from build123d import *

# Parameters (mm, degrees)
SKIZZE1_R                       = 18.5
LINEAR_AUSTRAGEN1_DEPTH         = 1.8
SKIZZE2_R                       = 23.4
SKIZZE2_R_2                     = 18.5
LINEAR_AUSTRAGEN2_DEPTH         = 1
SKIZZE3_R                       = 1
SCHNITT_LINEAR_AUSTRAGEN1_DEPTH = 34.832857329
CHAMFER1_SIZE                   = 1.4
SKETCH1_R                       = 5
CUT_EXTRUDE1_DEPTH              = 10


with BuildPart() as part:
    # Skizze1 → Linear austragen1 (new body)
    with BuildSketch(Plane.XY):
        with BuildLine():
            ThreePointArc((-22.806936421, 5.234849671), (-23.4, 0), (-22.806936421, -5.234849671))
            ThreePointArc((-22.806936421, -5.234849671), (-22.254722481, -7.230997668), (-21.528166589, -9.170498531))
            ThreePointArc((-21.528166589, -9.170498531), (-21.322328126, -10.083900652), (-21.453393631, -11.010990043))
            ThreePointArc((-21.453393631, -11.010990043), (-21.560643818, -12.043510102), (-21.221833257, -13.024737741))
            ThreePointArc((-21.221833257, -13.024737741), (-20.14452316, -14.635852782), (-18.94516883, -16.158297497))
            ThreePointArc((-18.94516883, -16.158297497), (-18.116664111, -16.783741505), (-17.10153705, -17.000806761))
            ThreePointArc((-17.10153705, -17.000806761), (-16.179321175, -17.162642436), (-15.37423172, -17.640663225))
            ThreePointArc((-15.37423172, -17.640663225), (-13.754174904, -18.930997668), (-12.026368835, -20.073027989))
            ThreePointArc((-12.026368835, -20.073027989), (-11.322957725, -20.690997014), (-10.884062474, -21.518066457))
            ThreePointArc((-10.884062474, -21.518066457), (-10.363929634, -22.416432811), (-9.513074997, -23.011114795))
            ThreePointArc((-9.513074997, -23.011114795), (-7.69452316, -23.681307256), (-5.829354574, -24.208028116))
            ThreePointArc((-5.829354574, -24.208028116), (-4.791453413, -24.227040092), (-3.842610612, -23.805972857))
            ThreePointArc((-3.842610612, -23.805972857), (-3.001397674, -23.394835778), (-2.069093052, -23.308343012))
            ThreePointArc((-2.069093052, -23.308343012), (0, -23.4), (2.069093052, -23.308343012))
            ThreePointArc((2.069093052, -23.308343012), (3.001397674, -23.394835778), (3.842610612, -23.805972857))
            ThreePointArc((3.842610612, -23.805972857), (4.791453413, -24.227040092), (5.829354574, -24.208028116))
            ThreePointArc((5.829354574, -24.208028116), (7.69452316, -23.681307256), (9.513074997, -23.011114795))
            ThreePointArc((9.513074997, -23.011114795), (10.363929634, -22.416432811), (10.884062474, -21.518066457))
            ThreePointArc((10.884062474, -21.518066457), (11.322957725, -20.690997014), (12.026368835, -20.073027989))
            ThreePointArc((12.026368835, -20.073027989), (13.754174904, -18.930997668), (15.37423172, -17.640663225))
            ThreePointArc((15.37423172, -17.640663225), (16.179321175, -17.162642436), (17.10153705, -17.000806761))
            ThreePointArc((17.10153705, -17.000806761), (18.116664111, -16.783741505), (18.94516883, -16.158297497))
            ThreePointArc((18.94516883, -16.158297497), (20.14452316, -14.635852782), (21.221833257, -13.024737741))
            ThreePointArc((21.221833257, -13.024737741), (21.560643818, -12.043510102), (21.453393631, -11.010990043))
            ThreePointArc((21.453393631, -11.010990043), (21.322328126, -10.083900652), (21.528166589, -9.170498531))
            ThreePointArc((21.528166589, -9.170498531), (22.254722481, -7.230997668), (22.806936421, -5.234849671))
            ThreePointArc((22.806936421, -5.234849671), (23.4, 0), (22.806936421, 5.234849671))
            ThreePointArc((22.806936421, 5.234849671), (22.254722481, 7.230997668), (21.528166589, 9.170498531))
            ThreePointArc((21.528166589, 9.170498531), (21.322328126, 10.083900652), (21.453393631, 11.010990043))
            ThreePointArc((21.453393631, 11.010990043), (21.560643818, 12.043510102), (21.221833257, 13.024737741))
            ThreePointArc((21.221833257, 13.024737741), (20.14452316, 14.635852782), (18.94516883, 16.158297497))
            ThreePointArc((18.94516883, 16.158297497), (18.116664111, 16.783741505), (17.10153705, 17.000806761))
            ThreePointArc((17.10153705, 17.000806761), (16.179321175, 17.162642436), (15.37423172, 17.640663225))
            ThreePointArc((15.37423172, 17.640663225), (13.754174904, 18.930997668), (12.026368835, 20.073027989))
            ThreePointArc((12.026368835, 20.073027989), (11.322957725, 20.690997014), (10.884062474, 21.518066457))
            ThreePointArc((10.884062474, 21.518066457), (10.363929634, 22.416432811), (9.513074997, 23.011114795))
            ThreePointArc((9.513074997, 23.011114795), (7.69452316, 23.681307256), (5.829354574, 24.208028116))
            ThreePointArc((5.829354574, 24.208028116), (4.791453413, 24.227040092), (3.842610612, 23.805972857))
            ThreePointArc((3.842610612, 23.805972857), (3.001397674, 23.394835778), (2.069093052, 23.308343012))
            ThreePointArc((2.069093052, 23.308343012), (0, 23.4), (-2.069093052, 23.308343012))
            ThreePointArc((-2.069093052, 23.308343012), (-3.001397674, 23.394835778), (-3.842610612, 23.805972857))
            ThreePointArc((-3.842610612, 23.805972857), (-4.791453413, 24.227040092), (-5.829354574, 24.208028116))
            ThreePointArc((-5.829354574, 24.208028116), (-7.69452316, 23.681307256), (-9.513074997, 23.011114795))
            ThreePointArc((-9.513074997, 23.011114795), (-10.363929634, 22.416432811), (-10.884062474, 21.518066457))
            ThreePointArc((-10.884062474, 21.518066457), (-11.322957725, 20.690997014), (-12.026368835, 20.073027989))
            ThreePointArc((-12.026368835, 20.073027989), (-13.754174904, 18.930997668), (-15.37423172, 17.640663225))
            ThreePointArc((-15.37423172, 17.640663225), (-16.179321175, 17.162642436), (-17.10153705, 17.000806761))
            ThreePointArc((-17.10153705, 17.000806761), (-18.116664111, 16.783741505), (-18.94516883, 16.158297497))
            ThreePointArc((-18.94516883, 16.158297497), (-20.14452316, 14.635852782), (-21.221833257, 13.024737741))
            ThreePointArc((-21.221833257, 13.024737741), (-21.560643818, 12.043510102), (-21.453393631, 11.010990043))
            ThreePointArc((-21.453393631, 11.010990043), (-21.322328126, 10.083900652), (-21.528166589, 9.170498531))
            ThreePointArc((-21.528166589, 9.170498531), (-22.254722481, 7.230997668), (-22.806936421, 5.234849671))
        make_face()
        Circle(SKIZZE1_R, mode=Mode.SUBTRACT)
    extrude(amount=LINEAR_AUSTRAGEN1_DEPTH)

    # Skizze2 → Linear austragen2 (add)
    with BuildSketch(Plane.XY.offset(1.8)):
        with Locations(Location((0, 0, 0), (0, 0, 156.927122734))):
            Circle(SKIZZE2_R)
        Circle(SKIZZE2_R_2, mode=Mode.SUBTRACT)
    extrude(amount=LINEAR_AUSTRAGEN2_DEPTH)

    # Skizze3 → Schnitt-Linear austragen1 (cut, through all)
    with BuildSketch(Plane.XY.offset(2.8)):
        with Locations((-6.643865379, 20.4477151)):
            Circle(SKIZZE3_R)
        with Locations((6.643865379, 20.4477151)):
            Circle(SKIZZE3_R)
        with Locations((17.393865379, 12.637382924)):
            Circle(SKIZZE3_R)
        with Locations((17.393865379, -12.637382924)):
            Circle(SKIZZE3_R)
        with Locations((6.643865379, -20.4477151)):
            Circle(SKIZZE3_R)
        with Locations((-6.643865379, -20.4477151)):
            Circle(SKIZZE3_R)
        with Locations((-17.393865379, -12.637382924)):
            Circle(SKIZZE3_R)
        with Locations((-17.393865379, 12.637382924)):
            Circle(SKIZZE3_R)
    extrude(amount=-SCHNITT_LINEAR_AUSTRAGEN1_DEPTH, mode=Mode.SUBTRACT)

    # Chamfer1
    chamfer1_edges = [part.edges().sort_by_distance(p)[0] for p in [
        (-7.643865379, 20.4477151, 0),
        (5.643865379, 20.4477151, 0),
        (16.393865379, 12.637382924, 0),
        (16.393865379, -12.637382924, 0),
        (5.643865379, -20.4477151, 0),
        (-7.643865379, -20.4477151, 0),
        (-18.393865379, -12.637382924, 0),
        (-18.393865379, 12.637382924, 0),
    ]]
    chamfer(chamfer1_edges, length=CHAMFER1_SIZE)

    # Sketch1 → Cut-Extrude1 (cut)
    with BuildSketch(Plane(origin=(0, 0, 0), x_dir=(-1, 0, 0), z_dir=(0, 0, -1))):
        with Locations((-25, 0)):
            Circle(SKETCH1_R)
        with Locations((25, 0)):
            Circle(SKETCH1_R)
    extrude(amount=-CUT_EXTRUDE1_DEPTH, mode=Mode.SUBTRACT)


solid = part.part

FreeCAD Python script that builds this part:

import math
import FreeCAD as App
import Part
import Sketcher


def edges_at(feature, points):
    """Names of the edges that pass closest to the given points."""
    edges = feature.Shape.Edges
    near = lambda p: min(range(len(edges)), key=lambda i: edges[i].distToShape(Part.Vertex(*p))[0])
    return sorted({f"Edge{near(p) + 1}" for p in points})

doc = App.newDocument("Part")
body = doc.addObject("PartDesign::Body", "Body")

sketch1 = doc.addObject("Sketcher::SketchObject", "Sketch")
body.addObject(sketch1)
sketch1.AttachmentSupport = (doc.XY_Plane, [""])
sketch1.MapMode = "FlatFace"
sketch1.addGeometry([
    Part.ArcOfCircle(Part.Circle(App.Vector(0, 0, 0), App.Vector(0, 0, 1), 23.4), math.radians(167), math.radians(193)),
    Part.ArcOfCircle(Part.Circle(App.Vector(0, 0, 0), App.Vector(0, 0, 1), 23.4), math.radians(-167.07), math.radians(-156.93)),
    Part.ArcOfCircle(Part.Circle(App.Vector(-23.9, -10.2, 0), App.Vector(0, 0, 1), 2.6), math.radians(-18), math.radians(23)),
    Part.ArcOfCircle(Part.Circle(App.Vector(-19.2, -11.8, 0), App.Vector(0, 0, 1), 2.4), math.radians(162), math.radians(212)),
    Part.ArcOfCircle(Part.Circle(App.Vector(0, 0, 0), App.Vector(0, 0, 1), 24.9), math.radians(-148.46), math.radians(-139.54)),
    Part.ArcOfCircle(Part.Circle(App.Vector(-17.1, -14.6, 0), App.Vector(0, 0, 1), 2.4), math.radians(-140), math.radians(-90)),
    Part.ArcOfCircle(Part.Circle(App.Vector(-17.1, -19.6, 0), App.Vector(0, 0, 1), 2.6), math.radians(49), math.radians(90)),
    Part.ArcOfCircle(Part.Circle(App.Vector(0, 0, 0), App.Vector(0, 0, 1), 23.4), math.radians(-131.07), math.radians(-120.93)),
    Part.ArcOfCircle(Part.Circle(App.Vector(-13.4, -22.3, 0), App.Vector(0, 0, 1), 2.6), math.radians(18), math.radians(59)),
    Part.ArcOfCircle(Part.Circle(App.Vector(-8.6, -20.8, 0), App.Vector(0, 0, 1), 2.4), math.radians(-162), math.radians(-112)),
    Part.ArcOfCircle(Part.Circle(App.Vector(0, 0, 0), App.Vector(0, 0, 1), 24.9), math.radians(-112.46), math.radians(-103.54)),
    Part.ArcOfCircle(Part.Circle(App.Vector(-5.3, -21.9, 0), App.Vector(0, 0, 1), 2.4), math.radians(-104), math.radians(-54)),
    Part.ArcOfCircle(Part.Circle(App.Vector(-2.3, -25.9, 0), App.Vector(0, 0, 1), 2.6), math.radians(85), math.radians(126)),
    Part.ArcOfCircle(Part.Circle(App.Vector(0, 0, 0), App.Vector(0, 0, 1), 23.4), math.radians(-95.07), math.radians(-84.93)),
    Part.ArcOfCircle(Part.Circle(App.Vector(2.3, -25.9, 0), App.Vector(0, 0, 1), 2.6), math.radians(54), math.radians(95)),
    Part.ArcOfCircle(Part.Circle(App.Vector(5.3, -21.9, 0), App.Vector(0, 0, 1), 2.4), math.radians(-126), math.radians(-76)),
    Part.ArcOfCircle(Part.Circle(App.Vector(0, 0, 0), App.Vector(0, 0, 1), 24.9), math.radians(-76.46), math.radians(-67.54)),
    Part.ArcOfCircle(Part.Circle(App.Vector(8.6, -20.8, 0), App.Vector(0, 0, 1), 2.4), math.radians(-68), math.radians(-18)),
    Part.ArcOfCircle(Part.Circle(App.Vector(13.4, -22.3, 0), App.Vector(0, 0, 1), 2.6), math.radians(121), math.radians(162)),
    Part.ArcOfCircle(Part.Circle(App.Vector(0, 0, 0), App.Vector(0, 0, 1), 23.4), math.radians(-59.07), math.radians(-48.93)),
    Part.ArcOfCircle(Part.Circle(App.Vector(17.1, -19.6, 0), App.Vector(0, 0, 1), 2.6), math.radians(90), math.radians(131)),
    Part.ArcOfCircle(Part.Circle(App.Vector(17.1, -14.6, 0), App.Vector(0, 0, 1), 2.4), math.radians(-90), math.radians(-40)),
    Part.ArcOfCircle(Part.Circle(App.Vector(0, 0, 0), App.Vector(0, 0, 1), 24.9), math.radians(-40.46), math.radians(-31.54)),
    Part.ArcOfCircle(Part.Circle(App.Vector(19.2, -11.8, 0), App.Vector(0, 0, 1), 2.4), math.radians(-32), math.radians(18)),
    Part.ArcOfCircle(Part.Circle(App.Vector(23.9, -10.2, 0), App.Vector(0, 0, 1), 2.6), math.radians(157), math.radians(198)),
    Part.ArcOfCircle(Part.Circle(App.Vector(0, 0, 0), App.Vector(0, 0, 1), 23.4), math.radians(-23.07), math.radians(-12.93)),
    Part.ArcOfCircle(Part.Circle(App.Vector(0, 0, 0), App.Vector(0, 0, 1), 23.4), math.radians(-13), math.radians(13)),
    Part.ArcOfCircle(Part.Circle(App.Vector(0, 0, 0), App.Vector(0, 0, 1), 23.4), math.radians(12.93), math.radians(23.07)),
    Part.ArcOfCircle(Part.Circle(App.Vector(23.9, 10.2, 0), App.Vector(0, 0, 1), 2.6), math.radians(162), math.radians(203)),
    Part.ArcOfCircle(Part.Circle(App.Vector(19.2, 11.8, 0), App.Vector(0, 0, 1), 2.4), math.radians(-18), math.radians(32)),
    Part.ArcOfCircle(Part.Circle(App.Vector(0, 0, 0), App.Vector(0, 0, 1), 24.9), math.radians(31.54), math.radians(40.46)),
    Part.ArcOfCircle(Part.Circle(App.Vector(17.1, 14.6, 0), App.Vector(0, 0, 1), 2.4), math.radians(40), math.radians(90)),
    Part.ArcOfCircle(Part.Circle(App.Vector(17.1, 19.6, 0), App.Vector(0, 0, 1), 2.6), math.radians(-131), math.radians(-90)),
    Part.ArcOfCircle(Part.Circle(App.Vector(0, 0, 0), App.Vector(0, 0, 1), 23.4), math.radians(48.93), math.radians(59.07)),
    Part.ArcOfCircle(Part.Circle(App.Vector(13.4, 22.3, 0), App.Vector(0, 0, 1), 2.6), math.radians(-162), math.radians(-121)),
    Part.ArcOfCircle(Part.Circle(App.Vector(8.6, 20.8, 0), App.Vector(0, 0, 1), 2.4), math.radians(18), math.radians(68)),
    Part.ArcOfCircle(Part.Circle(App.Vector(0, 0, 0), App.Vector(0, 0, 1), 24.9), math.radians(67.54), math.radians(76.46)),
    Part.ArcOfCircle(Part.Circle(App.Vector(5.3, 21.9, 0), App.Vector(0, 0, 1), 2.4), math.radians(76), math.radians(126)),
    Part.ArcOfCircle(Part.Circle(App.Vector(2.3, 25.9, 0), App.Vector(0, 0, 1), 2.6), math.radians(-95), math.radians(-54)),
    Part.ArcOfCircle(Part.Circle(App.Vector(0, 0, 0), App.Vector(0, 0, 1), 23.4), math.radians(84.93), math.radians(95.07)),
    Part.ArcOfCircle(Part.Circle(App.Vector(-2.3, 25.9, 0), App.Vector(0, 0, 1), 2.6), math.radians(-126), math.radians(-85)),
    Part.ArcOfCircle(Part.Circle(App.Vector(-5.3, 21.9, 0), App.Vector(0, 0, 1), 2.4), math.radians(54), math.radians(104)),
    Part.ArcOfCircle(Part.Circle(App.Vector(0, 0, 0), App.Vector(0, 0, 1), 24.9), math.radians(103.54), math.radians(112.46)),
    Part.ArcOfCircle(Part.Circle(App.Vector(-8.6, 20.8, 0), App.Vector(0, 0, 1), 2.4), math.radians(112), math.radians(162)),
    Part.ArcOfCircle(Part.Circle(App.Vector(-13.4, 22.3, 0), App.Vector(0, 0, 1), 2.6), math.radians(-59), math.radians(-18)),
    Part.ArcOfCircle(Part.Circle(App.Vector(0, 0, 0), App.Vector(0, 0, 1), 23.4), math.radians(120.93), math.radians(131.07)),
    Part.ArcOfCircle(Part.Circle(App.Vector(-17.1, 19.6, 0), App.Vector(0, 0, 1), 2.6), math.radians(-90), math.radians(-49)),
    Part.ArcOfCircle(Part.Circle(App.Vector(-17.1, 14.6, 0), App.Vector(0, 0, 1), 2.4), math.radians(90), math.radians(140)),
    Part.ArcOfCircle(Part.Circle(App.Vector(0, 0, 0), App.Vector(0, 0, 1), 24.9), math.radians(139.54), math.radians(148.46)),
    Part.ArcOfCircle(Part.Circle(App.Vector(-19.2, 11.8, 0), App.Vector(0, 0, 1), 2.4), math.radians(148), math.radians(198)),
    Part.ArcOfCircle(Part.Circle(App.Vector(-23.9, 10.2, 0), App.Vector(0, 0, 1), 2.6), math.radians(-23), math.radians(18)),
    Part.ArcOfCircle(Part.Circle(App.Vector(0, 0, 0), App.Vector(0, 0, 1), 23.4), math.radians(156.93), math.radians(167.07)),
    Part.Circle(App.Vector(0, 0, 0), App.Vector(0, 0, 1), 18.5),
], False)
sketch1.addConstraint([
    Sketcher.Constraint("Tangent", 0, 2, 1, 1),
    Sketcher.Constraint("Tangent", 1, 2, 2, 2),
    Sketcher.Constraint("Tangent", 2, 1, 3, 1),
    Sketcher.Constraint("Tangent", 3, 2, 4, 1),
    Sketcher.Constraint("Tangent", 4, 2, 5, 1),
    Sketcher.Constraint("Tangent", 5, 2, 6, 2),
    Sketcher.Constraint("Tangent", 6, 1, 7, 1),
    Sketcher.Constraint("Tangent", 7, 2, 8, 2),
    Sketcher.Constraint("Tangent", 8, 1, 9, 1),
    Sketcher.Constraint("Tangent", 9, 2, 10, 1),
    Sketcher.Constraint("Tangent", 10, 2, 11, 1),
    Sketcher.Constraint("Tangent", 11, 2, 12, 2),
    Sketcher.Constraint("Tangent", 12, 1, 13, 1),
    Sketcher.Constraint("Tangent", 13, 2, 14, 2),
    Sketcher.Constraint("Tangent", 14, 1, 15, 1),
    Sketcher.Constraint("Tangent", 15, 2, 16, 1),
    Sketcher.Constraint("Tangent", 16, 2, 17, 1),
    Sketcher.Constraint("Tangent", 17, 2, 18, 2),
    Sketcher.Constraint("Tangent", 18, 1, 19, 1),
    Sketcher.Constraint("Tangent", 19, 2, 20, 2),
    Sketcher.Constraint("Tangent", 20, 1, 21, 1),
    Sketcher.Constraint("Tangent", 21, 2, 22, 1),
    Sketcher.Constraint("Tangent", 22, 2, 23, 1),
    Sketcher.Constraint("Tangent", 23, 2, 24, 2),
    Sketcher.Constraint("Tangent", 24, 1, 25, 1),
    Sketcher.Constraint("Tangent", 25, 2, 26, 1),
    Sketcher.Constraint("Tangent", 26, 2, 27, 1),
    Sketcher.Constraint("Tangent", 27, 2, 28, 2),
    Sketcher.Constraint("Tangent", 28, 1, 29, 1),
    Sketcher.Constraint("Tangent", 29, 2, 30, 1),
    Sketcher.Constraint("Tangent", 30, 2, 31, 1),
    Sketcher.Constraint("Tangent", 31, 2, 32, 2),
    Sketcher.Constraint("Tangent", 32, 1, 33, 1),
    Sketcher.Constraint("Tangent", 33, 2, 34, 2),
    Sketcher.Constraint("Tangent", 34, 1, 35, 1),
    Sketcher.Constraint("Tangent", 35, 2, 36, 1),
    Sketcher.Constraint("Tangent", 36, 2, 37, 1),
    Sketcher.Constraint("Tangent", 37, 2, 38, 2),
    Sketcher.Constraint("Tangent", 38, 1, 39, 1),
    Sketcher.Constraint("Tangent", 39, 2, 40, 2),
    Sketcher.Constraint("Tangent", 40, 1, 41, 1),
    Sketcher.Constraint("Tangent", 41, 2, 42, 1),
    Sketcher.Constraint("Tangent", 42, 2, 43, 1),
    Sketcher.Constraint("Tangent", 43, 2, 44, 2),
    Sketcher.Constraint("Tangent", 44, 1, 45, 1),
    Sketcher.Constraint("Tangent", 45, 2, 46, 2),
    Sketcher.Constraint("Tangent", 46, 1, 47, 1),
    Sketcher.Constraint("Tangent", 47, 2, 48, 1),
    Sketcher.Constraint("Tangent", 48, 2, 49, 1),
    Sketcher.Constraint("Tangent", 49, 2, 50, 2),
    Sketcher.Constraint("Tangent", 50, 1, 51, 1),
    Sketcher.Constraint("Tangent", 51, 2, 0, 1),
    Sketcher.Constraint("Coincident", 0, 3, -1, 1),
    Sketcher.Constraint("Coincident", 4, 3, -1, 1),
    Sketcher.Constraint("Coincident", 7, 3, -1, 1),
    Sketcher.Constraint("Coincident", 10, 3, -1, 1),
    Sketcher.Constraint("Coincident", 13, 3, -1, 1),
    Sketcher.Constraint("Coincident", 16, 3, -1, 1),
    Sketcher.Constraint("Coincident", 19, 3, -1, 1),
    Sketcher.Constraint("Coincident", 22, 3, -1, 1),
    Sketcher.Constraint("Coincident", 25, 3, -1, 1),
    Sketcher.Constraint("Coincident", 27, 3, -1, 1),
    Sketcher.Constraint("Coincident", 30, 3, -1, 1),
    Sketcher.Constraint("Coincident", 33, 3, -1, 1),
    Sketcher.Constraint("Coincident", 36, 3, -1, 1),
    Sketcher.Constraint("Coincident", 39, 3, -1, 1),
    Sketcher.Constraint("Coincident", 42, 3, -1, 1),
    Sketcher.Constraint("Coincident", 45, 3, -1, 1),
    Sketcher.Constraint("Coincident", 48, 3, -1, 1),
    Sketcher.Constraint("Coincident", 52, 3, -1, 1),
    Sketcher.Constraint("Equal", 0, 1),
    Sketcher.Constraint("Equal", 3, 5),
    Sketcher.Constraint("Equal", 2, 6),
    Sketcher.Constraint("Equal", 1, 7),
    Sketcher.Constraint("Equal", 6, 8),
    Sketcher.Constraint("Equal", 5, 9),
    Sketcher.Constraint("Equal", 4, 10),
    Sketcher.Constraint("Equal", 9, 11),
    Sketcher.Constraint("Equal", 8, 12),
    Sketcher.Constraint("Equal", 7, 13),
    Sketcher.Constraint("Equal", 12, 14),
    Sketcher.Constraint("Equal", 11, 15),
    Sketcher.Constraint("Equal", 10, 16),
    Sketcher.Constraint("Equal", 15, 17),
    Sketcher.Constraint("Equal", 14, 18),
    Sketcher.Constraint("Equal", 13, 19),
    Sketcher.Constraint("Equal", 18, 20),
    Sketcher.Constraint("Equal", 17, 21),
    Sketcher.Constraint("Equal", 16, 22),
    Sketcher.Constraint("Equal", 21, 23),
    Sketcher.Constraint("Equal", 20, 24),
    Sketcher.Constraint("Equal", 19, 25),
    Sketcher.Constraint("Equal", 24, 28),
    Sketcher.Constraint("Equal", 23, 29),
    Sketcher.Constraint("Equal", 22, 30),
    Sketcher.Constraint("Equal", 29, 31),
    Sketcher.Constraint("Equal", 28, 32),
    Sketcher.Constraint("Equal", 27, 33),
    Sketcher.Constraint("Equal", 32, 34),
    Sketcher.Constraint("Equal", 31, 35),
    Sketcher.Constraint("Equal", 30, 36),
    Sketcher.Constraint("Equal", 35, 37),
    Sketcher.Constraint("Equal", 34, 38),
    Sketcher.Constraint("Equal", 33, 39),
    Sketcher.Constraint("Equal", 38, 40),
    Sketcher.Constraint("Equal", 37, 41),
    Sketcher.Constraint("Equal", 36, 42),
    Sketcher.Constraint("Equal", 41, 43),
    Sketcher.Constraint("Equal", 40, 44),
    Sketcher.Constraint("Equal", 39, 45),
    Sketcher.Constraint("Equal", 44, 46),
    Sketcher.Constraint("Equal", 43, 47),
    Sketcher.Constraint("Equal", 42, 48),
    Sketcher.Constraint("Equal", 47, 49),
    Sketcher.Constraint("Equal", 46, 50),
    Sketcher.Constraint("Equal", 45, 51),
    Sketcher.Constraint("Horizontal", 12, 3, 14, 3),
    Sketcher.Constraint("Horizontal", 9, 3, 17, 3),
    Sketcher.Constraint("Horizontal", 6, 3, 20, 3),
    Sketcher.Constraint("Horizontal", 3, 3, 23, 3),
    Sketcher.Constraint("Horizontal", 38, 3, 40, 3),
    Sketcher.Constraint("Horizontal", 35, 3, 43, 3),
    Sketcher.Constraint("Horizontal", 32, 3, 46, 3),
    Sketcher.Constraint("Horizontal", 29, 3, 49, 3),
    Sketcher.Constraint("Horizontal", 0, 2, 25, 2),
    Sketcher.Constraint("Horizontal", 26, 2, 51, 2),
    Sketcher.Constraint("Vertical", 24, 3, 28, 3),
    Sketcher.Constraint("Vertical", 21, 3, 31, 3),
    Sketcher.Constraint("Vertical", 18, 3, 34, 3),
    Sketcher.Constraint("Vertical", 15, 3, 37, 3),
    Sketcher.Constraint("Vertical", 25, 2, 26, 2),
    Sketcher.Constraint("Diameter", 52, 37.0),
    Sketcher.Constraint("Radius", 0, 23.4),
    Sketcher.Constraint("Radius", 2, 2.6),
    Sketcher.Constraint("Radius", 3, 2.4),
    Sketcher.Constraint("Radius", 4, 24.9),
    Sketcher.Constraint("DistanceY", 1, 2, -1, 1, 9.170499),
    Sketcher.Constraint("DistanceX", 5, 3, -1, 1, 17.119128),
    Sketcher.Constraint("DistanceX", 11, 3, -1, 1, 5.267489),
    Sketcher.Constraint("DistanceY", 0, 2, -1, 1, 5.23485),
    Sketcher.Constraint("DistanceX", 7, 2, -1, 1, 12.026369),
])
pad1 = doc.addObject("PartDesign::Pad", "Pad")
body.addObject(pad1)
pad1.Profile = sketch1
pad1.Length = 1.8

sketch2 = doc.addObject("Sketcher::SketchObject", "Sketch001")
body.addObject(sketch2)
sketch2.AttachmentSupport = (doc.XY_Plane, [""])
sketch2.MapMode = "FlatFace"
sketch2.AttachmentOffset = App.Placement(App.Vector(0, 0, 1.8), App.Rotation())
sketch2.addGeometry([
    Part.Circle(App.Vector(0, 0, 0), App.Vector(0, 0, 1), 23),
    Part.Circle(App.Vector(0, 0, 0), App.Vector(0, 0, 1), 18),
], False)
sketch2.addConstraint([
    Sketcher.Constraint("Coincident", 0, 3, -1, 1),
    Sketcher.Constraint("Coincident", 1, 3, -1, 1),
    Sketcher.Constraint("Diameter", 1, 37.0),
    Sketcher.Constraint("Diameter", 0, 46.8),
])
pad2 = doc.addObject("PartDesign::Pad", "Pad001")
body.addObject(pad2)
pad2.Profile = sketch2
pad2.Length = 1

sketch3 = doc.addObject("Sketcher::SketchObject", "Sketch002")
body.addObject(sketch3)
sketch3.AttachmentSupport = (doc.XY_Plane, [""])
sketch3.MapMode = "FlatFace"
sketch3.AttachmentOffset = App.Placement(App.Vector(0, 0, 2.8), App.Rotation())
sketch3.addGeometry([
    Part.Circle(App.Vector(-6.6, 20.4, 0), App.Vector(0, 0, 1), 1),
    Part.Circle(App.Vector(6.6, 20.4, 0), App.Vector(0, 0, 1), 1),
    Part.Circle(App.Vector(17.4, 12.6, 0), App.Vector(0, 0, 1), 1),
    Part.Circle(App.Vector(17.4, -12.6, 0), App.Vector(0, 0, 1), 1),
    Part.Circle(App.Vector(6.6, -20.4, 0), App.Vector(0, 0, 1), 1),
    Part.Circle(App.Vector(-6.6, -20.4, 0), App.Vector(0, 0, 1), 1),
    Part.Circle(App.Vector(-17.4, -12.6, 0), App.Vector(0, 0, 1), 1),
    Part.Circle(App.Vector(-17.4, 12.6, 0), App.Vector(0, 0, 1), 1),
], False)
sketch3.addConstraint([
    Sketcher.Constraint("Equal", 0, 1),
    Sketcher.Constraint("Equal", 1, 2),
    Sketcher.Constraint("Equal", 2, 3),
    Sketcher.Constraint("Equal", 3, 4),
    Sketcher.Constraint("Equal", 4, 5),
    Sketcher.Constraint("Equal", 5, 6),
    Sketcher.Constraint("Equal", 6, 7),
    Sketcher.Constraint("Symmetric", 0, 3, 4, 3, -1, 1),
    Sketcher.Constraint("Symmetric", 1, 3, 5, 3, -1, 1),
    Sketcher.Constraint("Symmetric", 2, 3, 6, 3, -1, 1),
    Sketcher.Constraint("Symmetric", 3, 3, 7, 3, -1, 1),
    Sketcher.Constraint("Symmetric", 0, 3, 1, 3, -2),
    Sketcher.Constraint("Symmetric", 3, 3, 6, 3, -2),
    Sketcher.Constraint("Diameter", 0, 2.0),
    Sketcher.Constraint("DistanceX", 1, 3, 2, 3, 10.75),
    Sketcher.Constraint("DistanceY", 3, 3, 1, 3, 33.085098),
    Sketcher.Constraint("DistanceX", 0, 3, 1, 3, 13.287731),
    Sketcher.Constraint("DistanceY", 4, 3, 1, 3, 40.89543),
])
pocket1 = doc.addObject("PartDesign::Pocket", "Pocket")
body.addObject(pocket1)
pocket1.Profile = sketch3
pocket1.Type = "ThroughAll"
doc.recompute()

chamfer = doc.addObject("PartDesign::Chamfer", "Chamfer")
body.addObject(chamfer)
chamfer.Base = (pocket1, edges_at(pocket1, [
    (-7.644, 20.448, 0),
    (5.644, 20.448, 0),
    (16.394, 12.637, 0),
    (16.394, -12.637, 0),
    (5.644, -20.448, 0),
    (-7.644, -20.448, 0),
    (-18.394, -12.637, 0),
    (-18.394, 12.637, 0),
]))
chamfer.Size = 1.4

sketch4 = doc.addObject("Sketcher::SketchObject", "Sketch003")
body.addObject(sketch4)
sketch4.AttachmentSupport = (doc.XY_Plane, [""])
sketch4.MapMode = "FlatFace"
sketch4.addGeometry([
    Part.Circle(App.Vector(25, 0, 0), App.Vector(0, 0, 1), 5),
    Part.Circle(App.Vector(-25, 0, 0), App.Vector(0, 0, 1), 5),
], False)
sketch4.addConstraint([
    Sketcher.Constraint("Equal", 0, 1),
    Sketcher.Constraint("Symmetric", 0, 3, 1, 3, -1, 1),
    Sketcher.Constraint("PointOnObject", 0, 3, -1),
    Sketcher.Constraint("Diameter", 0, 10.0),
    Sketcher.Constraint("DistanceX", -1, 1, 0, 3, 25.0),
])
pocket2 = doc.addObject("PartDesign::Pocket", "Pocket001")
body.addObject(pocket2)
pocket2.Profile = sketch4
pocket2.Length = 10
pocket2.Reversed = True

doc.recompute()
